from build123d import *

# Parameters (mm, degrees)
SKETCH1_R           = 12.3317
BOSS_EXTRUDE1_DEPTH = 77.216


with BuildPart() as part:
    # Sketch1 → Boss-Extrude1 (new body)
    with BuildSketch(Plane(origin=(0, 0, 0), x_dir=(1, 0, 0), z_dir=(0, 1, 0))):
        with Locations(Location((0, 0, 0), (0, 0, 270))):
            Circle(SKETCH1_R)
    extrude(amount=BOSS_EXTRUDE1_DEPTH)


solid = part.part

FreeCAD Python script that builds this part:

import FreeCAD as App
import Part
import Sketcher
Q = App.Units.Quantity

doc = App.newDocument("Part")
params = doc.addObject("Spreadsheet::Sheet", "Params")
for row, (alias, value) in enumerate([
    ("sketch1_diameter", "0.971 in"),
    ("pad1_length", "3.04 in"),
], start=1):
    params.set(f"A{row}", alias)
    params.set(f"B{row}", "=" + value)
    params.setAlias(f"B{row}", alias)

body = doc.addObject("PartDesign::Body", "Body")

# Sketch on XZ plane
sketch1 = doc.addObject("Sketcher::SketchObject", "Sketch")
body.addObject(sketch1)
sketch1.AttachmentSupport = (doc.XZ_Plane, [""])
sketch1.MapMode = "FlatFace"
sketch1.addGeometry(Part.Circle(App.Vector(0, 0, 0), App.Vector(0, 0, 1), 12), False)
sketch1.addConstraint([
    Sketcher.Constraint("Coincident", 0, 3, -1, 1),
    Sketcher.Constraint("Diameter", 0, Q("0.971 in")),
])
sketch1.setExpression("Constraints[1]", "Params.sketch1_diameter")
pad1 = doc.addObject("PartDesign::Pad", "Pad")
body.addObject(pad1)
pad1.Profile = sketch1
pad1.setExpression("Length", "Params.pad1_length")
pad1.Reversed = True

doc.recompute()
